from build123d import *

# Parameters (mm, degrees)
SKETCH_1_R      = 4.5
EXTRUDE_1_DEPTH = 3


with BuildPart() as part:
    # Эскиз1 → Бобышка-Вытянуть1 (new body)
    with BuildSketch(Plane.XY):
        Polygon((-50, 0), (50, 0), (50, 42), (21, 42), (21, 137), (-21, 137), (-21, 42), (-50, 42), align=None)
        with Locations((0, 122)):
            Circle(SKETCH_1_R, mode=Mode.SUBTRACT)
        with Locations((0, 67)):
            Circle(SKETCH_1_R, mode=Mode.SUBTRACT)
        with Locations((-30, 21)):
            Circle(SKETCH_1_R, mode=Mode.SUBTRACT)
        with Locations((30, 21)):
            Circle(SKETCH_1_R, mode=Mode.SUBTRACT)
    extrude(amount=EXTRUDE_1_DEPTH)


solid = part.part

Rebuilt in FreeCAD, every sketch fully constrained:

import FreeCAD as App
import Part
import Sketcher

V = App.Vector

doc = App.newDocument("Part")
body = doc.addObject("PartDesign::Body", "Body")

# Sketch on XY plane
sketch1 = doc.addObject("Sketcher::SketchObject", "Sketch")
body.addObject(sketch1)
sketch1.AttachmentSupport = (doc.XY_Plane, [""])
sketch1.MapMode = "FlatFace"
sketch1.addGeometry([
    Part.LineSegment(V(-50, 0, 0), V(50, 0, 0)),  # 0
    Part.LineSegment(V(50, 0, 0), V(50, 42, 0)),  # 1
    Part.LineSegment(V(50, 42, 0), V(21, 42, 0)),  # 2
    Part.LineSegment(V(21, 42, 0), V(21, 137, 0)),  # 3
    Part.LineSegment(V(21, 137, 0), V(-21, 137, 0)),  # 4
    Part.LineSegment(V(-21, 137, 0), V(-21, 42, 0)),  # 5
    Part.LineSegment(V(-21, 42, 0), V(-50, 42, 0)),  # 6
    Part.LineSegment(V(-50, 42, 0), V(-50, 0, 0)),  # 7
    Part.Circle(V(-30, 21, 0), V(0, 0, 1), 4.5),  # 8
    Part.Circle(V(30, 21, 0), V(0, 0, 1), 4.5),  # 9
    Part.Circle(V(0, 67, 0), V(0, 0, 1), 4.5),  # 10
    Part.Circle(V(0, 122, 0), V(0, 0, 1), 4.5),  # 11
], False)
sketch1.addConstraint([
    Sketcher.Constraint("Coincident", 0, 2, 1, 1),
    Sketcher.Constraint("Coincident", 1, 2, 2, 1),
    Sketcher.Constraint("Coincident", 2, 2, 3, 1),
    Sketcher.Constraint("Coincident", 3, 2, 4, 1),
    Sketcher.Constraint("Coincident", 4, 2, 5, 1),
    Sketcher.Constraint("Coincident", 5, 2, 6, 1),
    Sketcher.Constraint("Coincident", 6, 2, 7, 1),
    Sketcher.Constraint("Coincident", 7, 2, 0, 1),
    Sketcher.Constraint("Horizontal", 0),
    Sketcher.Constraint("Vertical", 1),
    Sketcher.Constraint("Horizontal", 2),
    Sketcher.Constraint("Vertical", 3),
    Sketcher.Constraint("Horizontal", 4),
    Sketcher.Constraint("Vertical", 5),
    Sketcher.Constraint("Horizontal", 6),
    Sketcher.Constraint("Vertical", 7),
    Sketcher.Constraint("Equal", 8, 9),
    Sketcher.Constraint("Equal", 9, 10),
    Sketcher.Constraint("Equal", 10, 11),
    Sketcher.Constraint("Symmetric", 0, 2, 7, 2, -1, 1),
    Sketcher.Constraint("Symmetric", 8, 3, 9, 3, -2),
    Sketcher.Constraint("Symmetric", 2, 2, 5, 2, -2),
    Sketcher.Constraint("PointOnObject", 10, 3, -2),
    Sketcher.Constraint("PointOnObject", 11, 3, -2),
    Sketcher.Constraint("Equal", 4, 1),
    Sketcher.Constraint("Diameter", 8, 9.0),
    Sketcher.Constraint("DistanceX", 0, 1, 0, 2, 100.0),
    Sketcher.Constraint("DistanceX", 2, 2, 2, 1, 29.0),
    Sketcher.Constraint("DistanceY", 3, 1, 3, 2, 95.0),
    Sketcher.Constraint("DistanceX", 8, 3, -1, 1, 30.0),
    Sketcher.Constraint("DistanceY", -1, 1, 8, 3, 21.0),
    Sketcher.Constraint("DistanceY", -1, 1, 10, 3, 67.0),
    Sketcher.Constraint("DistanceY", -1, 1, 11, 3, 122.0),
])
pad1 = doc.addObject("PartDesign::Pad", "Pad")
body.addObject(pad1)
pad1.Profile = sketch1
pad1.Length = 3

doc.recompute()
